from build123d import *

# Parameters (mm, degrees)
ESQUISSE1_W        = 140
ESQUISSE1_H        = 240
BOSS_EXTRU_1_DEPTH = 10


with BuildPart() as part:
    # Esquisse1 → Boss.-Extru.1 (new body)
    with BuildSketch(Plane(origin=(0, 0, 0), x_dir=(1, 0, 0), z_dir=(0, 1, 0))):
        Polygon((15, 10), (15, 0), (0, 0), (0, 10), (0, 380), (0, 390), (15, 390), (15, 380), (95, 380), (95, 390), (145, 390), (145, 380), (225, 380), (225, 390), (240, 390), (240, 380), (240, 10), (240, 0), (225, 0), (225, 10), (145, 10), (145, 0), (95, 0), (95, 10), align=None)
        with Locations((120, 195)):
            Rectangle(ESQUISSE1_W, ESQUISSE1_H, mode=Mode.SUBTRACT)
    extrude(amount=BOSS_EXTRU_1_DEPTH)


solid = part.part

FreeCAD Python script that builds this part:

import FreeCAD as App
import Part
import Sketcher

doc = App.newDocument("Part")
body = doc.addObject("PartDesign::Body", "Body")

sketch1 = doc.addObject("Sketcher::SketchObject", "Sketch")
body.addObject(sketch1)
sketch1.AttachmentSupport = (doc.XZ_Plane, [""])
sketch1.MapMode = "FlatFace"
sketch1.addGeometry([
    Part.LineSegment(App.Vector(15, 0, 0), App.Vector(15, -10, 0)),
    Part.LineSegment(App.Vector(15, -10, 0), App.Vector(95, -10, 0)),
    Part.LineSegment(App.Vector(95, -10, 0), App.Vector(95, 0, 0)),
    Part.LineSegment(App.Vector(95, 0, 0), App.Vector(145, 0, 0)),
    Part.LineSegment(App.Vector(145, 0, 0), App.Vector(145, -10, 0)),
    Part.LineSegment(App.Vector(145, -10, 0), App.Vector(225, -10, 0)),
    Part.LineSegment(App.Vector(225, -10, 0), App.Vector(225, 0, 0)),
    Part.LineSegment(App.Vector(225, 0, 0), App.Vector(240, 0, 0)),
    Part.LineSegment(App.Vector(240, 0, 0), App.Vector(240, -390, 0)),
    Part.LineSegment(App.Vector(240, -390, 0), App.Vector(225, -390, 0)),
    Part.LineSegment(App.Vector(225, -390, 0), App.Vector(225, -380, 0)),
    Part.LineSegment(App.Vector(225, -380, 0), App.Vector(145, -380, 0)),
    Part.LineSegment(App.Vector(145, -380, 0), App.Vector(145, -390, 0)),
    Part.LineSegment(App.Vector(145, -390, 0), App.Vector(95, -390, 0)),
    Part.LineSegment(App.Vector(95, -390, 0), App.Vector(95, -380, 0)),
    Part.LineSegment(App.Vector(95, -380, 0), App.Vector(15, -380, 0)),
    Part.LineSegment(App.Vector(15, -380, 0), App.Vector(15, -390, 0)),
    Part.LineSegment(App.Vector(15, -390, 0), App.Vector(0, -390, 0)),
    Part.LineSegment(App.Vector(0, -390, 0), App.Vector(0, 0, 0)),
    Part.LineSegment(App.Vector(0, 0, 0), App.Vector(15, 0, 0)),
    Part.LineSegment(App.Vector(50, -75, 0), App.Vector(50, -315, 0)),
    Part.LineSegment(App.Vector(50, -315, 0), App.Vector(190, -315, 0)),
    Part.LineSegment(App.Vector(190, -315, 0), App.Vector(190, -75, 0)),
    Part.LineSegment(App.Vector(190, -75, 0), App.Vector(50, -75, 0)),
], False)
sketch1.addConstraint([
    Sketcher.Constraint("Coincident", 0, 2, 1, 1),
    Sketcher.Constraint("Coincident", 1, 2, 2, 1),
    Sketcher.Constraint("Coincident", 2, 2, 3, 1),
    Sketcher.Constraint("Coincident", 3, 2, 4, 1),
    Sketcher.Constraint("Coincident", 4, 2, 5, 1),
    Sketcher.Constraint("Coincident", 5, 2, 6, 1),
    Sketcher.Constraint("Coincident", 6, 2, 7, 1),
    Sketcher.Constraint("Coincident", 7, 2, 8, 1),
    Sketcher.Constraint("Coincident", 8, 2, 9, 1),
    Sketcher.Constraint("Coincident", 9, 2, 10, 1),
    Sketcher.Constraint("Coincident", 10, 2, 11, 1),
    Sketcher.Constraint("Coincident", 11, 2, 12, 1),
    Sketcher.Constraint("Coincident", 12, 2, 13, 1),
    Sketcher.Constraint("Coincident", 13, 2, 14, 1),
    Sketcher.Constraint("Coincident", 14, 2, 15, 1),
    Sketcher.Constraint("Coincident", 15, 2, 16, 1),
    Sketcher.Constraint("Coincident", 16, 2, 17, 1),
    Sketcher.Constraint("Coincident", 17, 2, 18, 1),
    Sketcher.Constraint("Coincident", 18, 2, 19, 1),
    Sketcher.Constraint("Coincident", 19, 2, 0, 1),
    Sketcher.Constraint("Coincident", 20, 2, 21, 1),
    Sketcher.Constraint("Coincident", 21, 2, 22, 1),
    Sketcher.Constraint("Coincident", 22, 2, 23, 1),
    Sketcher.Constraint("Coincident", 23, 2, 20, 1),
    Sketcher.Constraint("Vertical", 0),
    Sketcher.Constraint("Horizontal", 1),
    Sketcher.Constraint("Vertical", 2),
    Sketcher.Constraint("Horizontal", 3),
    Sketcher.Constraint("Vertical", 4),
    Sketcher.Constraint("Horizontal", 5),
    Sketcher.Constraint("Vertical", 6),
    Sketcher.Constraint("Horizontal", 7),
    Sketcher.Constraint("Vertical", 8),
    Sketcher.Constraint("Horizontal", 9),
    Sketcher.Constraint("Vertical", 10),
    Sketcher.Constraint("Horizontal", 11),
    Sketcher.Constraint("Vertical", 12),
    Sketcher.Constraint("Horizontal", 13),
    Sketcher.Constraint("Vertical", 14),
    Sketcher.Constraint("Horizontal", 15),
    Sketcher.Constraint("Vertical", 16),
    Sketcher.Constraint("Horizontal", 17),
    Sketcher.Constraint("Vertical", 18),
    Sketcher.Constraint("Horizontal", 19),
    Sketcher.Constraint("Vertical", 20),
    Sketcher.Constraint("Horizontal", 21),
    Sketcher.Constraint("Vertical", 22),
    Sketcher.Constraint("Horizontal", 23),
    Sketcher.Constraint("Coincident", 18, 2, -1, 1),
    Sketcher.Constraint("PointOnObject", 2, 2, -1),
    Sketcher.Constraint("PointOnObject", 6, 2, -1),
    Sketcher.Constraint("Horizontal", 1, 2, 4, 2),
    Sketcher.Constraint("Horizontal", 9, 2, 12, 2),
    Sketcher.Constraint("Horizontal", 11, 2, 14, 2),
    Sketcher.Constraint("Horizontal", 13, 2, 16, 2),
    Sketcher.Constraint("Vertical", 6, 2, 9, 2),
    Sketcher.Constraint("Vertical", 4, 2, 11, 2),
    Sketcher.Constraint("Vertical", 2, 2, 13, 2),
    Sketcher.Constraint("Vertical", 0, 2, 15, 2),
    Sketcher.Constraint("Equal", 1, 5),
    Sketcher.Constraint("Equal", 9, 17),
    Sketcher.Constraint("Equal", 6, 10),
    Sketcher.Constraint("DistanceX", 1, 1, 1, 2, 80.0),
    Sketcher.Constraint("DistanceX", 3, 1, 3, 2, 50.0),
    Sketcher.Constraint("DistanceX", 7, 1, 7, 2, 15.0),
    Sketcher.Constraint("DistanceX", 21, 1, 21, 2, 140.0),
    Sketcher.Constraint("DistanceY", 0, 2, 0, 1, 10.0),
    Sketcher.Constraint("DistanceY", 8, 2, 8, 1, 390.0),
    Sketcher.Constraint("DistanceY", 20, 2, 20, 1, 240.0),
    Sketcher.Constraint("DistanceX", -1, 1, 20, 2, 50.0),
    Sketcher.Constraint("DistanceY", 20, 2, -1, 1, 315.0),
])
pad1 = doc.addObject("PartDesign::Pad", "Pad")
body.addObject(pad1)
pad1.Profile = sketch1
pad1.Length = 10
pad1.Reversed = True

doc.recompute()
